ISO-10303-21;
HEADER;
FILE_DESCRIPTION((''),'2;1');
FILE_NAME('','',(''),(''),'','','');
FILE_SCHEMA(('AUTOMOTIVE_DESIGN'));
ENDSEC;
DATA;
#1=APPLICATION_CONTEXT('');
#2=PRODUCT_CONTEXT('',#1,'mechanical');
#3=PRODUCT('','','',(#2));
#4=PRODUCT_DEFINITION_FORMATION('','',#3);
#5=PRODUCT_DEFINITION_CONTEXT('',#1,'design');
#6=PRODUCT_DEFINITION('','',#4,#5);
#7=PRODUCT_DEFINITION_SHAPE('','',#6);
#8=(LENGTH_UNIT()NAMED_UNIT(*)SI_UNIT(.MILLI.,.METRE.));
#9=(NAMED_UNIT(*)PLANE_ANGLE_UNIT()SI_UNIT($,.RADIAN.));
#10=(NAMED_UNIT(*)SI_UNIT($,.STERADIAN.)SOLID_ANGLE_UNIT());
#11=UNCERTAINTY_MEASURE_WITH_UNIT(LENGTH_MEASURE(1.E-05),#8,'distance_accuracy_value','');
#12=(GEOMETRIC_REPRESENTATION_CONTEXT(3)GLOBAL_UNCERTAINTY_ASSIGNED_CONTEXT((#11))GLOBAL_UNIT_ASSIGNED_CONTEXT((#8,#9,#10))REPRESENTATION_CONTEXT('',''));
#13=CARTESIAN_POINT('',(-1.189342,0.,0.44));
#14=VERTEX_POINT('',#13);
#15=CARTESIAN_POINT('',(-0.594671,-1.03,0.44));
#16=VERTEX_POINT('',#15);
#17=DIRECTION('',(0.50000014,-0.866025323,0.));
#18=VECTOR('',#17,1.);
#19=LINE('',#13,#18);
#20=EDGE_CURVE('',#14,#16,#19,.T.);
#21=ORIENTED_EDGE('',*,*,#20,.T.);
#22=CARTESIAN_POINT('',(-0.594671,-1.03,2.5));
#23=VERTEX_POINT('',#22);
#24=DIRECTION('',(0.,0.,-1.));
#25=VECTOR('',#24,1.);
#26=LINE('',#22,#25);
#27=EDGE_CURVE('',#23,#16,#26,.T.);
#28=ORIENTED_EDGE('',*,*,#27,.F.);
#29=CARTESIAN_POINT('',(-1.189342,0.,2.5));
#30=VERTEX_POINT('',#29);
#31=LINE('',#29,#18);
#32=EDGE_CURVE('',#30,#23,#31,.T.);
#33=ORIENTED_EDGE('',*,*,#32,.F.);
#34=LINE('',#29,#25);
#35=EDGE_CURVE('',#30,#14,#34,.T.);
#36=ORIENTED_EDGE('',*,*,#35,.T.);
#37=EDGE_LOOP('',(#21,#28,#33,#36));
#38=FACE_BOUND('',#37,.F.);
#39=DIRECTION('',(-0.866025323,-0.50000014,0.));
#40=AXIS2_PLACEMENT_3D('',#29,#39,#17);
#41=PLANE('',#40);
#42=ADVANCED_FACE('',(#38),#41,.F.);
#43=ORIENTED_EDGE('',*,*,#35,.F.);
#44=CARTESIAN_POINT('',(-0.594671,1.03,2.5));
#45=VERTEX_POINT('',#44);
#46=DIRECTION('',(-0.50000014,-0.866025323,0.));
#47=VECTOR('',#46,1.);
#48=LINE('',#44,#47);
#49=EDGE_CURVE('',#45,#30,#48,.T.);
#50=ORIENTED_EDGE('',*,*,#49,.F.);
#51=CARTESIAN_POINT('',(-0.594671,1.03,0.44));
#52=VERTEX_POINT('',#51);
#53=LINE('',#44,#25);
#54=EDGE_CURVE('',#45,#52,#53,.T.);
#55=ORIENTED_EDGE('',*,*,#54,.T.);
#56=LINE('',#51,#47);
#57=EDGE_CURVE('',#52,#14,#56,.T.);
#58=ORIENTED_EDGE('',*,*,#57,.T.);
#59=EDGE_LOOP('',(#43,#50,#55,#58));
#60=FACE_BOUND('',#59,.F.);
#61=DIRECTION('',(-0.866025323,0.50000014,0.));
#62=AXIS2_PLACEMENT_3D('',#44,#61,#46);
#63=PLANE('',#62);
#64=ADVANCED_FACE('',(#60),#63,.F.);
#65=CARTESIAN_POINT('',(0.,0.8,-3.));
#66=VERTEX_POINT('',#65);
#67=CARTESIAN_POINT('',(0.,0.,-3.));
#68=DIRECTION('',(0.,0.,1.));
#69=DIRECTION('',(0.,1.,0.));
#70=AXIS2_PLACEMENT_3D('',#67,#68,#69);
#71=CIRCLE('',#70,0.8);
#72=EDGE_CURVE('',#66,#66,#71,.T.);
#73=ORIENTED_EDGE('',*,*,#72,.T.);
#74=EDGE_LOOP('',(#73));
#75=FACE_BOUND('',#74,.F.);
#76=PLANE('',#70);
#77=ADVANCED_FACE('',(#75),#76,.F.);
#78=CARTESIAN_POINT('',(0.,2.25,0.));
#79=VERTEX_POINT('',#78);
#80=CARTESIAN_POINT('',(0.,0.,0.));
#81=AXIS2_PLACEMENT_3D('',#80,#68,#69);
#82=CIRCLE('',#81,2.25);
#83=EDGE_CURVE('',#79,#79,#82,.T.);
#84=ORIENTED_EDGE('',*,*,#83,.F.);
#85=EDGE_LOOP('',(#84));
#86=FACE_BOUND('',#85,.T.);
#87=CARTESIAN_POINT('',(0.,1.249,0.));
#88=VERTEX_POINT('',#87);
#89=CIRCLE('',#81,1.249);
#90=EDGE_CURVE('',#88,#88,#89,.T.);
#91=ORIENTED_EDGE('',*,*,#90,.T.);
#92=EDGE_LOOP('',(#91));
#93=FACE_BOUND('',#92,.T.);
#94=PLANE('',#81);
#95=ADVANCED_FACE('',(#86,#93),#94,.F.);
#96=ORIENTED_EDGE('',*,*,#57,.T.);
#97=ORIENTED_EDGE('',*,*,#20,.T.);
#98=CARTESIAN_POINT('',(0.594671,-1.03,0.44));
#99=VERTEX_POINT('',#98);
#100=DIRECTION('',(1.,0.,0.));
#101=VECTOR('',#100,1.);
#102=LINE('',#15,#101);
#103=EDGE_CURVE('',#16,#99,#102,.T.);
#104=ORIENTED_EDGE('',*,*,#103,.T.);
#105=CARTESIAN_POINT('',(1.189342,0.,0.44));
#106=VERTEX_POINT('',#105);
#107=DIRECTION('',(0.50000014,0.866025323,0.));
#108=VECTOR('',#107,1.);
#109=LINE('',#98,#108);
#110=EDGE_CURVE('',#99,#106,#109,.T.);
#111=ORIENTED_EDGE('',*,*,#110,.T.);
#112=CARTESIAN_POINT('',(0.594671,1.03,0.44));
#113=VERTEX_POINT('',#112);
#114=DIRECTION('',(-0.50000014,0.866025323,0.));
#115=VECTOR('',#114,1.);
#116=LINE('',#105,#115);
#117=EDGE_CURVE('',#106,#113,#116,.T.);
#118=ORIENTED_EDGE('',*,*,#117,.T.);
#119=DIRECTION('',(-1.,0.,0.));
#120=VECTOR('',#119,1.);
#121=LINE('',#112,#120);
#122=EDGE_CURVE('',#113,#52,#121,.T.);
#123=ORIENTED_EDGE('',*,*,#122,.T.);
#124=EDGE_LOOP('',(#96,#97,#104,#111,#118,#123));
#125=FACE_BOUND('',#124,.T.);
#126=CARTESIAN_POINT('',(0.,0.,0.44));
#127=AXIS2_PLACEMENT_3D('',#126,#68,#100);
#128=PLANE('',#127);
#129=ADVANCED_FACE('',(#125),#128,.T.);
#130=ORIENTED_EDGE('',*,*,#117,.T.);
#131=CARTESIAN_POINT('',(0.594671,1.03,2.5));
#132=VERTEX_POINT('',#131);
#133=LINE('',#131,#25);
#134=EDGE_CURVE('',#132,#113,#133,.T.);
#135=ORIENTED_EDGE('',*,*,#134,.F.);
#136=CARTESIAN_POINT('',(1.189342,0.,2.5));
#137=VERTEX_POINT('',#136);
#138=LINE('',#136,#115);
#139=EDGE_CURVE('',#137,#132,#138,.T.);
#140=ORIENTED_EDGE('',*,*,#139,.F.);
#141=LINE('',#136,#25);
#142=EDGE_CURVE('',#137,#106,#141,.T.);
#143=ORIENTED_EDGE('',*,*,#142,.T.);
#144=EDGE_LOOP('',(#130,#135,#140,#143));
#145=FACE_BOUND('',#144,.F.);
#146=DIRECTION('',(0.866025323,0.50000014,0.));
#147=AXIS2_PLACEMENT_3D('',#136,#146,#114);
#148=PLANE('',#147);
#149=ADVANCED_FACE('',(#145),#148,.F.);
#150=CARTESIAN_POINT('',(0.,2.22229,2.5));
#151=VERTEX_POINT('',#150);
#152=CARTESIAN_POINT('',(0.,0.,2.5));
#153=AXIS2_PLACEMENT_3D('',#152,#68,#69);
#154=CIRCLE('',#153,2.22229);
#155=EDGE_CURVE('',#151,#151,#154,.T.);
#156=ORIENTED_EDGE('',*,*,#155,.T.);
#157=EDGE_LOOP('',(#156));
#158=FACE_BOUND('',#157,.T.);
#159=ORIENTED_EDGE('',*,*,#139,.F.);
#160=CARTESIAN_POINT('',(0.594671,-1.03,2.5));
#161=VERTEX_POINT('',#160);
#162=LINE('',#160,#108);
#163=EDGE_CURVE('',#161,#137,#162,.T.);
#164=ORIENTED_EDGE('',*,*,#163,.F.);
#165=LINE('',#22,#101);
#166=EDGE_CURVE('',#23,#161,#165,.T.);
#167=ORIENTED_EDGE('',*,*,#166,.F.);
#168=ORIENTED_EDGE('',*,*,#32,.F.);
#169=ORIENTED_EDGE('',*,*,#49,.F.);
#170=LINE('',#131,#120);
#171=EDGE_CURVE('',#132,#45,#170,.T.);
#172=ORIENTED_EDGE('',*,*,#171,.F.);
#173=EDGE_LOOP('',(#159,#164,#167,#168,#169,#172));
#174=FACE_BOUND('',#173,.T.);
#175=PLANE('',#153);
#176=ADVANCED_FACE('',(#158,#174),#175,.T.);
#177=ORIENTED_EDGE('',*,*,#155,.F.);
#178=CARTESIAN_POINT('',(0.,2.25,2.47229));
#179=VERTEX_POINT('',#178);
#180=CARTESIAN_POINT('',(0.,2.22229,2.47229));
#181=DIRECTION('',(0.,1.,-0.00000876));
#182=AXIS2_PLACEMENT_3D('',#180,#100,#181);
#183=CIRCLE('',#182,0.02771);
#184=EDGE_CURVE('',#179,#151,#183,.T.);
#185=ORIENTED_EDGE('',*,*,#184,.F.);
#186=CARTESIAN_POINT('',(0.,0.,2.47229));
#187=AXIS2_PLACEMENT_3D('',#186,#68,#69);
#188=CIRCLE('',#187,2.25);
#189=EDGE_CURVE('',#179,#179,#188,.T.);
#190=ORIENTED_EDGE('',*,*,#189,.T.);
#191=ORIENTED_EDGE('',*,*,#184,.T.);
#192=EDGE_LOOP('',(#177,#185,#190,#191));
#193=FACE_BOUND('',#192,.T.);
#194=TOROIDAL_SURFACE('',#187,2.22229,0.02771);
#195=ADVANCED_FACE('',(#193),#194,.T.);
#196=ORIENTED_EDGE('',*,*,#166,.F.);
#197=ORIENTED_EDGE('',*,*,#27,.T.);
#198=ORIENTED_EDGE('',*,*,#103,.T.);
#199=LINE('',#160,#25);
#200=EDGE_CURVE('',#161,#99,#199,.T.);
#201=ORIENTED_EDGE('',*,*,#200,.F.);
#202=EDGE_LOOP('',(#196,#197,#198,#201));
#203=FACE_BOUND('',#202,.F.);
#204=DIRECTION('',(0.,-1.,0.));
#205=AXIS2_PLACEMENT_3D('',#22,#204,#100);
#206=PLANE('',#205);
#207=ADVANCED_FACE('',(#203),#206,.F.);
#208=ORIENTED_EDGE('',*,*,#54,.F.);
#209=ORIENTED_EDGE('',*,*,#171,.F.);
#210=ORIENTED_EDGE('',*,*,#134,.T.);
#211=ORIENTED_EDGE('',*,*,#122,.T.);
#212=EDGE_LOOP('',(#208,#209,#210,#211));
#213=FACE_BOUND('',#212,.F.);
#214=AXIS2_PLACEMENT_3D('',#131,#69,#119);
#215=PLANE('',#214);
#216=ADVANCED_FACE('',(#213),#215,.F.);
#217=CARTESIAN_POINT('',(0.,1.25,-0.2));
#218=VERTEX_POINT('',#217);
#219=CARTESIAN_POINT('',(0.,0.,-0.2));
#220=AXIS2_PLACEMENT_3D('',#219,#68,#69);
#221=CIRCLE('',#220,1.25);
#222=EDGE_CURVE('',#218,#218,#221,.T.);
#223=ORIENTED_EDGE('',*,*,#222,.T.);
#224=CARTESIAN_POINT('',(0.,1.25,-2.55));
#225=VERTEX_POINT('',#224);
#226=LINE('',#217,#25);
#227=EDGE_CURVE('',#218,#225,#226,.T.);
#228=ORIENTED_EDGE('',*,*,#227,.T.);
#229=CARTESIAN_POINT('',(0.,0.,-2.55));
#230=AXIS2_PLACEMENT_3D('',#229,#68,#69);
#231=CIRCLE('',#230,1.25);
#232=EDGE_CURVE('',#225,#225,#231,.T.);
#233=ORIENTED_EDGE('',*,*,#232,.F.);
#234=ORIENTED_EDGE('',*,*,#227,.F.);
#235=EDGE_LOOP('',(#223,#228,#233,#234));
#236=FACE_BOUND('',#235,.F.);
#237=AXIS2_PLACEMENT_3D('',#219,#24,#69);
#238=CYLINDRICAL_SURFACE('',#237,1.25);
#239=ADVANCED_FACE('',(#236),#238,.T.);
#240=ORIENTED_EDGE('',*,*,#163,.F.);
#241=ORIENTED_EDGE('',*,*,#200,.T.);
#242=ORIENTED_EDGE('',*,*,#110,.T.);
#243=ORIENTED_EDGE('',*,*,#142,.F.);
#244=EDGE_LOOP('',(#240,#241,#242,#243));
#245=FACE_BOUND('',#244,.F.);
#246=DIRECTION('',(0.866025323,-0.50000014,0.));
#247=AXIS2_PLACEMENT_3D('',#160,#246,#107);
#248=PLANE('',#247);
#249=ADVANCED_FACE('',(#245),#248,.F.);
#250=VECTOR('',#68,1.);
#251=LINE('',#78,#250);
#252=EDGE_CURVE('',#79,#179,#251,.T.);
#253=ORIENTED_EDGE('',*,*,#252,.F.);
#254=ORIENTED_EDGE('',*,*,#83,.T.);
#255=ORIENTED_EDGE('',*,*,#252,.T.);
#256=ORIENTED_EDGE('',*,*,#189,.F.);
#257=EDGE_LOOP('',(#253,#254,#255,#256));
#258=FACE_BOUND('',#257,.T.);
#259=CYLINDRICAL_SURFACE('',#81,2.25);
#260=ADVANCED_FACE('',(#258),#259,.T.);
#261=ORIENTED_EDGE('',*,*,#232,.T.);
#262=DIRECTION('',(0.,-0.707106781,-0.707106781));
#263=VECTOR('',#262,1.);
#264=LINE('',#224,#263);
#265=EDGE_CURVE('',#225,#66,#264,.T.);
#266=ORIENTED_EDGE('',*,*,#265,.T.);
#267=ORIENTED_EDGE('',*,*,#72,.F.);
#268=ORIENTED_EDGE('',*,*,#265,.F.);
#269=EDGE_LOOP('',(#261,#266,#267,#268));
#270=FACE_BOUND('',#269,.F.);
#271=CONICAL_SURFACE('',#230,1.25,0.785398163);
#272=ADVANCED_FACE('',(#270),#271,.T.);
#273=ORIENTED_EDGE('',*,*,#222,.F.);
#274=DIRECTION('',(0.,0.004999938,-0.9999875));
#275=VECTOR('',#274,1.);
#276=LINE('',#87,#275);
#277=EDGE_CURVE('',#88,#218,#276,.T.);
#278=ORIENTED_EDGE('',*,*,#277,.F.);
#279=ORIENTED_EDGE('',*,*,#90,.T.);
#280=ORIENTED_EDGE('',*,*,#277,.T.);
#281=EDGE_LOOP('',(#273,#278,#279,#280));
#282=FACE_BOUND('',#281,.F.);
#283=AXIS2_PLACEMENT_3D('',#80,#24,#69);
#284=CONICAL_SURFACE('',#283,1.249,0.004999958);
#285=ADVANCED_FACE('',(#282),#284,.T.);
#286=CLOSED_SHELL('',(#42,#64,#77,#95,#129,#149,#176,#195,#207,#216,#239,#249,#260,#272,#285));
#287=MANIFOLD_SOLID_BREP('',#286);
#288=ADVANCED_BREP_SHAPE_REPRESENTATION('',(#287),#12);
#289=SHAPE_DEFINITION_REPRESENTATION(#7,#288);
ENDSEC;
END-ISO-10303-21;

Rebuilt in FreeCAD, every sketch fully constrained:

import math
import FreeCAD as App
import Part
import Sketcher
Q = App.Units.Quantity

doc = App.newDocument("Part")
body = doc.addObject("PartDesign::Body", "Body")

# Sketch on YZ plane
sketch1 = doc.addObject("Sketcher::SketchObject", "Sketch")
body.addObject(sketch1)
sketch1.AttachmentSupport = (doc.YZ_Plane, [""])
sketch1.MapMode = "FlatFace"
sketch1.addGeometry(Part.LineSegment(App.Vector(1.249, 0, 0), App.Vector(2.25, 0, 0)), False)
sketch1.addGeometry(Part.LineSegment(App.Vector(2.25, 0, 0), App.Vector(2.25, 2.472, 0)), False)
sketch1.addGeometry(Part.ArcOfCircle(Part.Circle(App.Vector(2.222, 2.472, 0), App.Vector(0, 0, 1), 0.028), math.radians(0), math.radians(90)), False)
sketch1.addGeometry(Part.LineSegment(App.Vector(2.222, 2.5, 0), App.Vector(0, 2.5, 0)), False)
sketch1.addGeometry(Part.LineSegment(App.Vector(0, 2.5, 0), App.Vector(0, -3, 0)), False)
sketch1.addGeometry(Part.LineSegment(App.Vector(0, -3, 0), App.Vector(0.8, -3, 0)), False)
sketch1.addGeometry(Part.LineSegment(App.Vector(0.8, -3, 0), App.Vector(1.25, -2.55, 0)), False)
sketch1.addGeometry(Part.LineSegment(App.Vector(1.25, -2.55, 0), App.Vector(1.25, -0.2, 0)), False)
sketch1.addGeometry(Part.LineSegment(App.Vector(1.25, -0.2, 0), App.Vector(1.249, 0, 0)), False)
sketch1.addConstraint(Sketcher.Constraint("Coincident", 0, 2, 1, 1))
sketch1.addConstraint(Sketcher.Constraint("Coincident", 1, 2, 2, 1))
sketch1.addConstraint(Sketcher.Constraint("Coincident", 2, 2, 3, 1))
sketch1.addConstraint(Sketcher.Constraint("Coincident", 3, 2, 4, 1))
sketch1.addConstraint(Sketcher.Constraint("Coincident", 4, 2, 5, 1))
sketch1.addConstraint(Sketcher.Constraint("Coincident", 5, 2, 6, 1))
sketch1.addConstraint(Sketcher.Constraint("Coincident", 6, 2, 7, 1))
sketch1.addConstraint(Sketcher.Constraint("Coincident", 7, 2, 8, 1))
sketch1.addConstraint(Sketcher.Constraint("Coincident", 8, 2, 0, 1))
sketch1.addConstraint(Sketcher.Constraint("Horizontal", 0))
sketch1.addConstraint(Sketcher.Constraint("Vertical", 1))
sketch1.addConstraint(Sketcher.Constraint("Horizontal", 3))
sketch1.addConstraint(Sketcher.Constraint("Vertical", 4))
sketch1.addConstraint(Sketcher.Constraint("Horizontal", 5))
sketch1.addConstraint(Sketcher.Constraint("Vertical", 7))
sketch1.addConstraint(Sketcher.Constraint("PointOnObject", 0, 2, -1))
sketch1.addConstraint(Sketcher.Constraint("PointOnObject", 3, 2, -2))
sketch1.addConstraint(Sketcher.Constraint("Horizontal", 2, 3, 1, 2))
sketch1.addConstraint(Sketcher.Constraint("Angle", 6, Q("45 deg")))
sketch1.addConstraint(Sketcher.Constraint("DistanceX", 5, 1, 5, 2, 0.8))
sketch1.addConstraint(Sketcher.Constraint("DistanceY", 4, 2, 4, 1, 5.5))
sketch1.addConstraint(Sketcher.Constraint("DistanceY", 4, 2, -1, 1, 3.0))
sketch1.addConstraint(Sketcher.Constraint("DistanceX", 6, 2, 0, 2, 1.0))
sketch1.addConstraint(Sketcher.Constraint("DistanceY", 7, 1, 7, 2, 2.35))
sketch1.addConstraint(Sketcher.Constraint("DistanceY", 7, 2, -1, 1, 0.2))
sketch1.addConstraint(Sketcher.Constraint("DistanceX", 0, 1, 0, 2, 1.001))
sketch1.addConstraint(Sketcher.Constraint("Radius", 2, 0.02771))
sketch1.addConstraint(Sketcher.Constraint("DistanceX", 3, 2, 3, 1, 2.22229))
revolution = doc.addObject("PartDesign::Revolution", "Revolution")
body.addObject(revolution)
revolution.Profile = sketch1
revolution.ReferenceAxis = (sketch1, ["V_Axis"])
revolution.Angle = 360

# Sketch on XY plane
sketch2 = doc.addObject("Sketcher::SketchObject", "Sketch001")
body.addObject(sketch2)
sketch2.AttachmentSupport = (doc.XY_Plane, [""])
sketch2.MapMode = "FlatFace"
sketch2.AttachmentOffset = App.Placement(App.Vector(0, 0, 2.5), App.Rotation())
sketch2.addGeometry(Part.LineSegment(App.Vector(1.2, 0, 0), App.Vector(0.6, 1, 0)), False)
sketch2.addGeometry(Part.LineSegment(App.Vector(0.6, 1, 0), App.Vector(-0.6, 1, 0)), False)
sketch2.addGeometry(Part.LineSegment(App.Vector(-0.6, 1, 0), App.Vector(-1.2, 0, 0)), False)
sketch2.addGeometry(Part.LineSegment(App.Vector(-1.2, 0, 0), App.Vector(-0.6, -1, 0)), False)
sketch2.addGeometry(Part.LineSegment(App.Vector(-0.6, -1, 0), App.Vector(0.6, -1, 0)), False)
sketch2.addGeometry(Part.LineSegment(App.Vector(0.6, -1, 0), App.Vector(1.2, 0, 0)), False)
sketch2.addConstraint(Sketcher.Constraint("Coincident", 0, 2, 1, 1))
sketch2.addConstraint(Sketcher.Constraint("Coincident", 1, 2, 2, 1))
sketch2.addConstraint(Sketcher.Constraint("Coincident", 2, 2, 3, 1))
sketch2.addConstraint(Sketcher.Constraint("Coincident", 3, 2, 4, 1))
sketch2.addConstraint(Sketcher.Constraint("Coincident", 4, 2, 5, 1))
sketch2.addConstraint(Sketcher.Constraint("Coincident", 5, 2, 0, 1))
sketch2.addConstraint(Sketcher.Constraint("Horizontal", 1))
sketch2.addConstraint(Sketcher.Constraint("Horizontal", 4))
sketch2.addConstraint(Sketcher.Constraint("Symmetric", 0, 2, 3, 2, -1, 1))
sketch2.addConstraint(Sketcher.Constraint("Symmetric", 2, 2, 5, 2, -1, 1))
sketch2.addConstraint(Sketcher.Constraint("PointOnObject", 2, 2, -1))
sketch2.addConstraint(Sketcher.Constraint("Parallel", 2, 5))
sketch2.addConstraint(Sketcher.Constraint("Vertical", 1, 2, 3, 2))
sketch2.addConstraint(Sketcher.Constraint("Angle", 0, Q("120.000009 deg")))
sketch2.addConstraint(Sketcher.Constraint("DistanceY", -1, 1, 0, 2, 1.03))
sketch2.addConstraint(Sketcher.Constraint("DistanceX", 1, 2, 1, 1, 1.189342))
pocket1 = doc.addObject("PartDesign::Pocket", "Pocket")
body.addObject(pocket1)
pocket1.Profile = sketch2
pocket1.Length = 2.06

doc.recompute()
